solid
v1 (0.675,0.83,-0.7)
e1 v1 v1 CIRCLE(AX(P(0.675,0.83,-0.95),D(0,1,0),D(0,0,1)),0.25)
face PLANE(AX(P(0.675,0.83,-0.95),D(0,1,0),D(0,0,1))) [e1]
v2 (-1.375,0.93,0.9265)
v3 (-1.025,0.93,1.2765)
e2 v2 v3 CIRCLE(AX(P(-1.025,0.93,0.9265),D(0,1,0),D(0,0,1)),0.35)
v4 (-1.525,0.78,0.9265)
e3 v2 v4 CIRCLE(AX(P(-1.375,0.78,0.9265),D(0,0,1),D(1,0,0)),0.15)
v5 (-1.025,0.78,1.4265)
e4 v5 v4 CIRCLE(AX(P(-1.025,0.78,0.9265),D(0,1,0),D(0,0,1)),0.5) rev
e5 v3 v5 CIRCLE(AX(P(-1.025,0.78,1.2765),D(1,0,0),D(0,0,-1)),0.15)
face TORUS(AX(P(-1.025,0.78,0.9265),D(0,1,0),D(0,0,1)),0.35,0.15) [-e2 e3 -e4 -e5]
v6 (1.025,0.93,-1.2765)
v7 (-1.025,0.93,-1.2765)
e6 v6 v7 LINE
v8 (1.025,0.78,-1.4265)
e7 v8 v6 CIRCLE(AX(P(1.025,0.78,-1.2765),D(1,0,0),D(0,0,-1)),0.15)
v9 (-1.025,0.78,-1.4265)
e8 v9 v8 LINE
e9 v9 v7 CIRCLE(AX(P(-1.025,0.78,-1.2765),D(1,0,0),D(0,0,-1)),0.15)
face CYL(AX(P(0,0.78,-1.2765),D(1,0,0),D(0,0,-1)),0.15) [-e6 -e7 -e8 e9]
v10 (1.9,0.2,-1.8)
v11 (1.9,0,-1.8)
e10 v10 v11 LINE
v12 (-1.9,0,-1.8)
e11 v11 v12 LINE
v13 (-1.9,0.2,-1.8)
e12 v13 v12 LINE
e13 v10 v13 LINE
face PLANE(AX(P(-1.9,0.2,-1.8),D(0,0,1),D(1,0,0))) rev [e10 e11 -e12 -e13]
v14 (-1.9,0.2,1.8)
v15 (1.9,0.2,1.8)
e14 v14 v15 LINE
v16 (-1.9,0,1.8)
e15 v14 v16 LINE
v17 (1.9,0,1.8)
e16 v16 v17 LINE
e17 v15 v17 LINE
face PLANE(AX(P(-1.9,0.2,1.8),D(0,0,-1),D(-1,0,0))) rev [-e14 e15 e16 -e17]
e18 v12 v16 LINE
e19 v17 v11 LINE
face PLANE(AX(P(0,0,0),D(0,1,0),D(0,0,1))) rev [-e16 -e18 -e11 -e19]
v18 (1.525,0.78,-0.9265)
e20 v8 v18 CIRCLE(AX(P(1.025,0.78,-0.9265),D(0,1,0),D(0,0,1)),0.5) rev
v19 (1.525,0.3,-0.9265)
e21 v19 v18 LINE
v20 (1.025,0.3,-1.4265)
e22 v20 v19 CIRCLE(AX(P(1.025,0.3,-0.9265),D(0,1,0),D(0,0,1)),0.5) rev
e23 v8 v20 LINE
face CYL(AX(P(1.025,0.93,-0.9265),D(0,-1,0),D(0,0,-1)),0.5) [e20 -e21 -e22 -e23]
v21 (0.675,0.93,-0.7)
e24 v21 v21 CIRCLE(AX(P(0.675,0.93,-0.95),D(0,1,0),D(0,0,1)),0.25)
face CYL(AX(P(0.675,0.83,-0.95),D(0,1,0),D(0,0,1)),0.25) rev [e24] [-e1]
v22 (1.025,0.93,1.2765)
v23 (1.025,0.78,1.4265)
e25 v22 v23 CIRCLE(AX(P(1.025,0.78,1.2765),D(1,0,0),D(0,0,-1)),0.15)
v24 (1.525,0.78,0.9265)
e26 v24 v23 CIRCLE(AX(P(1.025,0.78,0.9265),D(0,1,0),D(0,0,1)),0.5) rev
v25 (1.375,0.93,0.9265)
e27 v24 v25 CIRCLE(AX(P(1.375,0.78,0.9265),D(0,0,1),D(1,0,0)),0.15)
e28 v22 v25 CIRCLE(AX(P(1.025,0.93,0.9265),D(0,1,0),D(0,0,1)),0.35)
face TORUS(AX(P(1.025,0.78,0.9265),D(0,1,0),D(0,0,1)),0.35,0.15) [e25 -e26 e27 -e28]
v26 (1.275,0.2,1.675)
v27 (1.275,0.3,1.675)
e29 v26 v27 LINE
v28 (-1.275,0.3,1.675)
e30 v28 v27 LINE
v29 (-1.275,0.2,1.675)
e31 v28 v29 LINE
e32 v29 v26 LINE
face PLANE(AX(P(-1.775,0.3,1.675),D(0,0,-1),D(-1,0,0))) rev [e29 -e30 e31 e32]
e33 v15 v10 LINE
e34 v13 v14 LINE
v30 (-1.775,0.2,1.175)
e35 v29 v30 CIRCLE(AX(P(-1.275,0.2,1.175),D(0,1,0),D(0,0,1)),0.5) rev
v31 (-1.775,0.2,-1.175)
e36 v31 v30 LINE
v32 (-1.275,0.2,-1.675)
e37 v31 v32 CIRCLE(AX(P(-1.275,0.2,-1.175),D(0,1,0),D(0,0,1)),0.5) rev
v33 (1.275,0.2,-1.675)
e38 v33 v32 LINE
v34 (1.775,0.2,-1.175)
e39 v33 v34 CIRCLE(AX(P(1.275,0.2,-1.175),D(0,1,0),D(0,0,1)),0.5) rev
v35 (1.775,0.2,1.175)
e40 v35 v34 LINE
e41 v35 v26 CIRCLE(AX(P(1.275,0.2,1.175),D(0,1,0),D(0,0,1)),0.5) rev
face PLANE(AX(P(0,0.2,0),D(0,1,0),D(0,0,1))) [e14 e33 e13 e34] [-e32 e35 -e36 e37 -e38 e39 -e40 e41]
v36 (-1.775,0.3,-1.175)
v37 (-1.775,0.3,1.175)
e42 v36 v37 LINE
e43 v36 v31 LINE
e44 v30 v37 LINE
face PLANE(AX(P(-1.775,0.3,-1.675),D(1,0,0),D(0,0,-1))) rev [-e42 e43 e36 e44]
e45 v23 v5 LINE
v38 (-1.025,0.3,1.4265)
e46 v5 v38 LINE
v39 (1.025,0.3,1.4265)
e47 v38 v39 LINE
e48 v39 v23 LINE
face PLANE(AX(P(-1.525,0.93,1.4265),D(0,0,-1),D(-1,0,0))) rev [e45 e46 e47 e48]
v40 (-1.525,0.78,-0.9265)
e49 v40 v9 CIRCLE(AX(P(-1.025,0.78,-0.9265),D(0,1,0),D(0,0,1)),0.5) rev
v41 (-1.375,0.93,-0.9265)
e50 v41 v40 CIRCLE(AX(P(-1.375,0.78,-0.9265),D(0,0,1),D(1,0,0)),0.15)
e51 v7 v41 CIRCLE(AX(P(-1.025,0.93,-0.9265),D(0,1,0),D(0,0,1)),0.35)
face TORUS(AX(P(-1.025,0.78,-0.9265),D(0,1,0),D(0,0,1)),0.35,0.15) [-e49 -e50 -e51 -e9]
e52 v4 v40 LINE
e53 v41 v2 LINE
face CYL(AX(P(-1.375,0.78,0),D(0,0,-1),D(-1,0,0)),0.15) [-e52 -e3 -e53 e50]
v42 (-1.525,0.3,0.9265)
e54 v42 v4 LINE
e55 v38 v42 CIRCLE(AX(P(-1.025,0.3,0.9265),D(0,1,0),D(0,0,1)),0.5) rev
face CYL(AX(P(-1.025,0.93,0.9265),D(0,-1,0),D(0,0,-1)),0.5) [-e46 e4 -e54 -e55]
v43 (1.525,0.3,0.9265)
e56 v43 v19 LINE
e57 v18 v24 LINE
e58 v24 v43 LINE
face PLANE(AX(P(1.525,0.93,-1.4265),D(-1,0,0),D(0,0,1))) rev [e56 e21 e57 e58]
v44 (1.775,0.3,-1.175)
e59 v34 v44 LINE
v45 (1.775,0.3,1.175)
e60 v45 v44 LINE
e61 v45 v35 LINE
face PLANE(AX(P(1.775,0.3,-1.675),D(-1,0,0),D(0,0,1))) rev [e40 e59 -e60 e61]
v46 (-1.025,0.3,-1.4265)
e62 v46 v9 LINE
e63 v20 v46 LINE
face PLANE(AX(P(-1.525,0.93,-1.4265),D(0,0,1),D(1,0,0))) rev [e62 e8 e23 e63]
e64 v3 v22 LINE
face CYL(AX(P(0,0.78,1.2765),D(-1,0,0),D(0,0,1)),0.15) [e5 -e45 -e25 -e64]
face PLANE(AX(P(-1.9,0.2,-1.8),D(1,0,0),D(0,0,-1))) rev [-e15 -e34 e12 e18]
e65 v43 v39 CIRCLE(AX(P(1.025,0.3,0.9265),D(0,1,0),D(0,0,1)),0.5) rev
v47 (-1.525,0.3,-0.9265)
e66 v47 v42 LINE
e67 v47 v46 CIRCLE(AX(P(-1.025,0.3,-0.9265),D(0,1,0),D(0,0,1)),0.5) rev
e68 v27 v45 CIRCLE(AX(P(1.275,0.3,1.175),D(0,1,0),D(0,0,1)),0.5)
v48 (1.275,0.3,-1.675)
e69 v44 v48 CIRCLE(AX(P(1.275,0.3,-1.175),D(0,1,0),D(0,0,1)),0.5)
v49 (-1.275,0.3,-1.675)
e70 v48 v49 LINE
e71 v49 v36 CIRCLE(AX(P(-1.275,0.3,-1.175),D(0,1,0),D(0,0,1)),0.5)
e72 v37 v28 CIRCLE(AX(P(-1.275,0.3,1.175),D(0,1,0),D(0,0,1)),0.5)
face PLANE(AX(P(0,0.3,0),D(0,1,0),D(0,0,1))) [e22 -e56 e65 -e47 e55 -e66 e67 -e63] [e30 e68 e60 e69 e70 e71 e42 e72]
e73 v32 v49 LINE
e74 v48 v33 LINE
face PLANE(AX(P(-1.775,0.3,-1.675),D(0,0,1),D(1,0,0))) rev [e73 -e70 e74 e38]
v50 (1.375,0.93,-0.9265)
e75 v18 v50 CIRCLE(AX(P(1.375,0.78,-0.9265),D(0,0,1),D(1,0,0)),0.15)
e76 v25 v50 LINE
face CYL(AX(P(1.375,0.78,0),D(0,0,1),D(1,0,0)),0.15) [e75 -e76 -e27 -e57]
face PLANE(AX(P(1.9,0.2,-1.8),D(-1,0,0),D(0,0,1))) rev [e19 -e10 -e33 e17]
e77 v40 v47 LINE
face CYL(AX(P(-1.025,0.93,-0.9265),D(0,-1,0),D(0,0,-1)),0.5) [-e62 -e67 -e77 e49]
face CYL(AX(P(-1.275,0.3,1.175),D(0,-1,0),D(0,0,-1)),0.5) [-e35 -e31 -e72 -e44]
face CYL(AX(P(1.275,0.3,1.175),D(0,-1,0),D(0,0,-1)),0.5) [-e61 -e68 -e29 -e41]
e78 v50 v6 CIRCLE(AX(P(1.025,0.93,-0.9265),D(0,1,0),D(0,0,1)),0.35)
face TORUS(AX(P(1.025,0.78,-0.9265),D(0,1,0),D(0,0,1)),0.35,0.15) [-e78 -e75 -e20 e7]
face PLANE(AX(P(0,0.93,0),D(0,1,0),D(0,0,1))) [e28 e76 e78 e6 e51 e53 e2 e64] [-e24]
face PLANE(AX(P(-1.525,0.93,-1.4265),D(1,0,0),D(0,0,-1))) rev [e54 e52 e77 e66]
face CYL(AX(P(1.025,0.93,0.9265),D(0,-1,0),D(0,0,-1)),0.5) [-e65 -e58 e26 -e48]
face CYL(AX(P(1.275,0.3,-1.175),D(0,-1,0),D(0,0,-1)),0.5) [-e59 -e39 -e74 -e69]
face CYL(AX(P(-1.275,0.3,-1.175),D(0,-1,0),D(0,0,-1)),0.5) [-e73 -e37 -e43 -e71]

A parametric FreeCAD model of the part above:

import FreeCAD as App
import Part
import Sketcher
from FreeCAD import Vector
Q = App.Units.Quantity


def edges_at(feature, points):
    """Names of the edges that pass closest to the given points."""
    edges = feature.Shape.Edges
    near = lambda p: min(range(len(edges)), key=lambda i: edges[i].distToShape(Part.Vertex(*p))[0])
    return sorted({f"Edge{near(p) + 1}" for p in points})

doc = App.newDocument("Part")
body = doc.addObject("PartDesign::Body", "Body")

# Sketch on XZ plane
sketch1 = body.newObject("Sketcher::SketchObject", "Sketch")
sketch1.AttachmentSupport = (doc.getObject("XZ_Plane"), [""])
sketch1.MapMode = "FlatFace"
sketch1.addGeometry([
    Part.LineSegment(Vector(-1.9, -1.8, 0), Vector(-1.9, 1.8, 0)),
    Part.LineSegment(Vector(-1.9, 1.8, 0), Vector(1.9, 1.8, 0)),
    Part.LineSegment(Vector(1.9, 1.8, 0), Vector(1.9, -1.8, 0)),
    Part.LineSegment(Vector(1.9, -1.8, 0), Vector(-1.9, -1.8, 0)),
], False)
sketch1.addConstraint([
    Sketcher.Constraint("Coincident", 0, 2, 1, 1),
    Sketcher.Constraint("Coincident", 1, 2, 2, 1),
    Sketcher.Constraint("Coincident", 2, 2, 3, 1),
    Sketcher.Constraint("Coincident", 3, 2, 0, 1),
    Sketcher.Constraint("Vertical", 0),
    Sketcher.Constraint("Horizontal", 1),
    Sketcher.Constraint("Vertical", 2),
    Sketcher.Constraint("Horizontal", 3),
    Sketcher.Constraint("Symmetric", 0, 2, 2, 2, -1, 1),
    Sketcher.Constraint("DistanceX", 1, 1, 1, 2, Q("3.8 mm")),
    Sketcher.Constraint("DistanceY", 0, 1, 0, 2, Q("3.6 mm")),
])
pad1 = body.newObject("PartDesign::Pad", "Pad")
pad1.Profile = sketch1
pad1.Length = 0.2
pad1.Reversed = True

# Sketch on XZ plane
sketch2 = body.newObject("Sketcher::SketchObject", "Sketch001")
sketch2.AttachmentSupport = (doc.getObject("XZ_Plane"), [""])
sketch2.MapMode = "FlatFace"
sketch2.AttachmentOffset = App.Placement(Vector(0, 0, -0.2), App.Rotation())
sketch2.addGeometry([
    Part.LineSegment(Vector(-1.8, -1.7, 0), Vector(-1.8, 1.7, 0)),
    Part.LineSegment(Vector(-1.8, 1.7, 0), Vector(1.8, 1.7, 0)),
    Part.LineSegment(Vector(1.8, 1.7, 0), Vector(1.8, -1.7, 0)),
    Part.LineSegment(Vector(1.8, -1.7, 0), Vector(-1.8, -1.7, 0)),
], False)
sketch2.addConstraint([
    Sketcher.Constraint("Coincident", 0, 2, 1, 1),
    Sketcher.Constraint("Coincident", 1, 2, 2, 1),
    Sketcher.Constraint("Coincident", 2, 2, 3, 1),
    Sketcher.Constraint("Coincident", 3, 2, 0, 1),
    Sketcher.Constraint("Vertical", 0),
    Sketcher.Constraint("Horizontal", 1),
    Sketcher.Constraint("Vertical", 2),
    Sketcher.Constraint("Horizontal", 3),
    Sketcher.Constraint("Symmetric", 0, 2, 2, 2, -1, 1),
    Sketcher.Constraint("DistanceX", 1, 1, 1, 2, Q("3.55 mm")),
    Sketcher.Constraint("DistanceY", 0, 1, 0, 2, Q("3.35 mm")),
])
pad2 = body.newObject("PartDesign::Pad", "Pad001")
pad2.Profile = sketch2
pad2.Length = 0.1
pad2.Reversed = True
doc.recompute()

fillet = body.newObject("PartDesign::Fillet", "Fillet")
fillet.Base = (pad2, edges_at(pad2, [
    (1.775, 0.25, 1.675),
    (1.775, 0.25, -1.675),
    (-1.775, 0.25, -1.675),
    (-1.775, 0.25, 1.675),
]))
fillet.Radius = 0.5

# Sketch on XZ plane
sketch3 = body.newObject("Sketcher::SketchObject", "Sketch002")
sketch3.AttachmentSupport = (doc.getObject("XZ_Plane"), [""])
sketch3.MapMode = "FlatFace"
sketch3.AttachmentOffset = App.Placement(Vector(0, 0, -0.3), App.Rotation())
sketch3.addGeometry([
    Part.LineSegment(Vector(-1.5, -1.4, 0), Vector(-1.5, 1.4, 0)),
    Part.LineSegment(Vector(-1.5, 1.4, 0), Vector(1.5, 1.4, 0)),
    Part.LineSegment(Vector(1.5, 1.4, 0), Vector(1.5, -1.4, 0)),
    Part.LineSegment(Vector(1.5, -1.4, 0), Vector(-1.5, -1.4, 0)),
], False)
sketch3.addConstraint([
    Sketcher.Constraint("Coincident", 0, 2, 1, 1),
    Sketcher.Constraint("Coincident", 1, 2, 2, 1),
    Sketcher.Constraint("Coincident", 2, 2, 3, 1),
    Sketcher.Constraint("Coincident", 3, 2, 0, 1),
    Sketcher.Constraint("Vertical", 0),
    Sketcher.Constraint("Horizontal", 1),
    Sketcher.Constraint("Vertical", 2),
    Sketcher.Constraint("Horizontal", 3),
    Sketcher.Constraint("Symmetric", 0, 2, 2, 2, -1, 1),
    Sketcher.Constraint("DistanceX", 1, 1, 1, 2, Q("3.05 mm")),
    Sketcher.Constraint("DistanceY", 0, 1, 0, 2, Q("2.853 mm")),
])
pad3 = body.newObject("PartDesign::Pad", "Pad002")
pad3.Profile = sketch3
pad3.Length = 0.63
pad3.Reversed = True
doc.recompute()

fillet2 = body.newObject("PartDesign::Fillet", "Fillet001")
fillet2.Base = (pad3, edges_at(pad3, [
    (1.525, 0.615, 1.427),
    (1.525, 0.615, -1.427),
    (-1.525, 0.615, -1.427),
    (-1.525, 0.615, 1.427),
]))
fillet2.Radius = 0.5
doc.recompute()

fillet3 = body.newObject("PartDesign::Fillet", "Fillet002")
fillet3.Base = (fillet2, edges_at(fillet2, [
    (0, 0.93, -1.427),
    (1.525, 0.93, 0),
    (-1.525, 0.93, 0),
    (0, 0.93, 1.427),
    (-1.379, 0.93, 1.28),
    (-1.379, 0.93, -1.28),
    (1.379, 0.93, 1.28),
    (1.379, 0.93, -1.28),
]))
fillet3.Radius = 0.15

# Sketch on XZ plane
sketch4 = body.newObject("Sketcher::SketchObject", "Sketch003")
sketch4.AttachmentSupport = (doc.getObject("XZ_Plane"), [""])
sketch4.MapMode = "FlatFace"
sketch4.AttachmentOffset = App.Placement(Vector(0, 0, -0.93), App.Rotation())
sketch4.addGeometry(Part.Circle(Vector(0.68, -0.95, 0), Vector(0, 0, 1), 0.25), False)
sketch4.addConstraint([
    Sketcher.Constraint("Diameter", 0, Q("0.5 mm")),
    Sketcher.Constraint("DistanceY", 0, 3, -1, 1, Q("0.95 mm")),
    Sketcher.Constraint("DistanceX", -1, 1, 0, 3, Q("0.675 mm")),
])
pocket1 = body.newObject("PartDesign::Pocket", "Pocket")
pocket1.Profile = sketch4
pocket1.Length = 0.1
pocket1.Reversed = True

doc.recompute()
